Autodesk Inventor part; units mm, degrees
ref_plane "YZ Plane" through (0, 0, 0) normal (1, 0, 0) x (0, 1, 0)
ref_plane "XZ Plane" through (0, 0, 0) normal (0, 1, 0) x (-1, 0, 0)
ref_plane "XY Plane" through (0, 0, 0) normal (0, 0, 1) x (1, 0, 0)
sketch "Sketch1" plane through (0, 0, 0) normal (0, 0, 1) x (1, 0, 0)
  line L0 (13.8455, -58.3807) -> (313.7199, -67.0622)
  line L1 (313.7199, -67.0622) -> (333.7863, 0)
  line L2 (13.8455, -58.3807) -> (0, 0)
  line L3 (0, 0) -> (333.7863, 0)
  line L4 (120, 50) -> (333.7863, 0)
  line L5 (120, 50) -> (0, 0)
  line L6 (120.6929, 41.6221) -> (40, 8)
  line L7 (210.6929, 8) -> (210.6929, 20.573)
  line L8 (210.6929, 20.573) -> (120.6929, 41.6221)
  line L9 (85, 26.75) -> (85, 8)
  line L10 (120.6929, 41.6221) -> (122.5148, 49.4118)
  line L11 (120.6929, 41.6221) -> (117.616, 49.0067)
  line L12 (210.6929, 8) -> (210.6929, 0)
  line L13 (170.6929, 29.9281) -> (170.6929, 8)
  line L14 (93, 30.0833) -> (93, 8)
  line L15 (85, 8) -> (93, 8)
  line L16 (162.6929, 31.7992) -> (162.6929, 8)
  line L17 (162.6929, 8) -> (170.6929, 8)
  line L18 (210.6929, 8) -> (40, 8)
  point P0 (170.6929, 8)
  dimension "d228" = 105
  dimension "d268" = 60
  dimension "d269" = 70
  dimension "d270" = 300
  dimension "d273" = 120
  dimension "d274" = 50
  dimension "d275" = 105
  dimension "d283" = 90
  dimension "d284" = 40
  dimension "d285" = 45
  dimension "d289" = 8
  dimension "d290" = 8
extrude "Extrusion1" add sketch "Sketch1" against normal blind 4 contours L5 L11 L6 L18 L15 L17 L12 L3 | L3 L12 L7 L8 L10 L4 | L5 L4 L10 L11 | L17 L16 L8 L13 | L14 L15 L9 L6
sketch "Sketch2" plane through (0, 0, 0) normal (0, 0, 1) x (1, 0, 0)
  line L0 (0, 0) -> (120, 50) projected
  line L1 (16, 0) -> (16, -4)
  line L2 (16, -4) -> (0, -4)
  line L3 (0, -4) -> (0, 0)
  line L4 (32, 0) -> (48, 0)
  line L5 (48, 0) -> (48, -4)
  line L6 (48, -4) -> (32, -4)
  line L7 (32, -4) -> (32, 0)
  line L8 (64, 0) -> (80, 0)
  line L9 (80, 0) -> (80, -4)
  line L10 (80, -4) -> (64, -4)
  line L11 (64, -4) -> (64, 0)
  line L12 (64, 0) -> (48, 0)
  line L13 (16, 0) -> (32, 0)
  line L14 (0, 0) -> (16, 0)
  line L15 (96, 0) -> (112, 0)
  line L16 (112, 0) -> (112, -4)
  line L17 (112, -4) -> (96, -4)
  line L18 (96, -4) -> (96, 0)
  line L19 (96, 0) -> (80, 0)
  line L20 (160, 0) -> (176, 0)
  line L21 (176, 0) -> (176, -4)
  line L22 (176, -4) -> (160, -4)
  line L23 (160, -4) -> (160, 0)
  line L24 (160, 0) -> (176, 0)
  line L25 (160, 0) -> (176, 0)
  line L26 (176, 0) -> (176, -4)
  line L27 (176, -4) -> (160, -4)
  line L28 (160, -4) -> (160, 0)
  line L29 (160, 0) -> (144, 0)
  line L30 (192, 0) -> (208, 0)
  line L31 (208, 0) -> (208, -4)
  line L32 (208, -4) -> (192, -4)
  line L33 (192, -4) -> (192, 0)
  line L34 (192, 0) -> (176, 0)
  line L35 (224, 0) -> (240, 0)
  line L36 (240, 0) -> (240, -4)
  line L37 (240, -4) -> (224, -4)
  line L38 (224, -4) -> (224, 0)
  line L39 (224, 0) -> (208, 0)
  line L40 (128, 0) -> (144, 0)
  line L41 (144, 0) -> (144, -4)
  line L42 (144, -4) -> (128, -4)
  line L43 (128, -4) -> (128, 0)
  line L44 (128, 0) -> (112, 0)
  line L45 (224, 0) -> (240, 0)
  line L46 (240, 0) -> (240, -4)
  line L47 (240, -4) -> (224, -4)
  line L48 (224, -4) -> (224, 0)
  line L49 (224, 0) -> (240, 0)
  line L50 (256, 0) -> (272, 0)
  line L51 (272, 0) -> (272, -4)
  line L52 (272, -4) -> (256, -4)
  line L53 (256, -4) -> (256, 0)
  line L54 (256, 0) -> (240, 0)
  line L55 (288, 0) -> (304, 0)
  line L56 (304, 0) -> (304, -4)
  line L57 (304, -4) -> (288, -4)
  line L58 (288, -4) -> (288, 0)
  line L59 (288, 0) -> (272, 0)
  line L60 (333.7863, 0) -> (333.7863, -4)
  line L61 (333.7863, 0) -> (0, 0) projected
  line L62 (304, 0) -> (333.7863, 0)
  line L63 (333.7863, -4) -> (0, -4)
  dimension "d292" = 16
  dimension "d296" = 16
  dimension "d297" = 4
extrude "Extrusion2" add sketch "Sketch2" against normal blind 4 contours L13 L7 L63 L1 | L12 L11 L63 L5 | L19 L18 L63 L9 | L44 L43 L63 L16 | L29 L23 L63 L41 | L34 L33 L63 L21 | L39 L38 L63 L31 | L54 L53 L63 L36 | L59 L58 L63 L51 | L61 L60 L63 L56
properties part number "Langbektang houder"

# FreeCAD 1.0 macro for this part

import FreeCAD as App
import Part
import Sketcher
Q = App.Units.Quantity


def add_polygon(sketch, points):
    """Adds a closed chain of lines whose ends are joined by coincident constraints."""
    first, n = sketch.GeometryCount, len(points)
    for a, b in zip(points, points[1:] + points[:1]):
        sketch.addGeometry(Part.LineSegment(App.Vector(*a, 0), App.Vector(*b, 0)), False)
    for i in range(n):
        sketch.addConstraint(Sketcher.Constraint("Coincident", first + i, 2, first + (i + 1) % n, 1))

doc = App.newDocument("Part")
body = doc.addObject("PartDesign::Body", "Body")

# Sketch on XY plane
sketch1 = doc.addObject("Sketcher::SketchObject", "Sketch")
body.addObject(sketch1)
sketch1.AttachmentSupport = (doc.XY_Plane, [""])
sketch1.MapMode = "FlatFace"
add_polygon(sketch1, [(0, 0), (333.7863, 0), (120, 50)])  # lines 0-2
add_polygon(sketch1, [(92.999975, 30.083361), (120.6929, 41.6221), (162.6929, 31.7992), (162.6929, 8), (93, 8)])  # lines 3-7
add_polygon(sketch1, [(40, 8), (85, 26.75), (85, 8)])  # lines 8-10
add_polygon(sketch1, [(210.6929, 8), (170.6929, 8), (170.692912, 29.928153), (210.6929, 20.573)])  # lines 11-14
sketch1.addConstraint(Sketcher.Constraint("Horizontal", 0))
sketch1.addConstraint(Sketcher.Constraint("Vertical", 5))
sketch1.addConstraint(Sketcher.Constraint("Horizontal", 6))
sketch1.addConstraint(Sketcher.Constraint("Vertical", 7))
sketch1.addConstraint(Sketcher.Constraint("Vertical", 9))
sketch1.addConstraint(Sketcher.Constraint("Horizontal", 10))
sketch1.addConstraint(Sketcher.Constraint("Horizontal", 11))
sketch1.addConstraint(Sketcher.Constraint("Vertical", 12))
sketch1.addConstraint(Sketcher.Constraint("Vertical", 14))
sketch1.addConstraint(Sketcher.Constraint("Coincident", 2, 2, -1, 1))
sketch1.addConstraint(Sketcher.Constraint("DistanceX", 10, 2, 10, 1, Q("45 mm")))
sketch1.addConstraint(Sketcher.Constraint("DistanceX", 11, 2, 11, 1, Q("40 mm")))
sketch1.addConstraint(Sketcher.Constraint("DistanceX", -1, 1, 1, 2, Q("120 mm")))
sketch1.addConstraint(Sketcher.Constraint("DistanceY", -1, 1, 1, 2, Q("50 mm")))
sketch1.addConstraint(Sketcher.Constraint("DistanceY", -1, 1, 5, 2, Q("8 mm")))
sketch1.addConstraint(Sketcher.Constraint("DistanceY", -1, 1, 9, 2, Q("8 mm")))
sketch1.addConstraint(Sketcher.Constraint("DistanceX", -1, 1, 10, 2, Q("40 mm")))
sketch1.addConstraint(Sketcher.Constraint("DistanceY", -1, 1, 11, 2, Q("8 mm")))
sketch1.addConstraint(Sketcher.Constraint("DistanceX", 8, 2, 7, 2, Q("8 mm")))
sketch1.addConstraint(Sketcher.Constraint("DistanceX", 5, 2, 11, 2, Q("8 mm")))
sketch1.addConstraint(Sketcher.Constraint("DistanceX", 3, 2, 11, 2, Q("50 mm")))
sketch1.addConstraint(Sketcher.Constraint("DistanceY", 9, 2, 9, 1, Q("18.75 mm")))
sketch1.addConstraint(Sketcher.Constraint("DistanceX", 6, 2, 6, 1, Q("69.693 mm")))
sketch1.addConstraint(Sketcher.Constraint("DistanceY", 12, 1, 12, 2, Q("21.928 mm")))
sketch1.addConstraint(Sketcher.Constraint("DistanceY", 14, 2, 14, 1, Q("12.573 mm")))
sketch1.addConstraint(Sketcher.Constraint("DistanceX", 0, 1, 0, 2, Q("333.7863 mm")))
sketch1.addConstraint(Sketcher.Constraint("DistanceY", 5, 2, 5, 1, Q("23.7992 mm")))
sketch1.addConstraint(Sketcher.Constraint("DistanceY", 7, 1, 7, 2, Q("22.0833 mm")))
sketch1.addConstraint(Sketcher.Constraint("DistanceY", -1, 1, 3, 2, Q("41.622 mm")))
pad1 = doc.addObject("PartDesign::Pad", "Pad")
body.addObject(pad1)
pad1.Profile = sketch1
pad1.Length = 4
pad1.Reversed = True

# Sketch on XY plane
sketch2 = doc.addObject("Sketcher::SketchObject", "Sketch001")
body.addObject(sketch2)
sketch2.AttachmentSupport = (doc.XY_Plane, [""])
sketch2.MapMode = "FlatFace"
add_polygon(sketch2, [(32, 0), (16, 0), (16, -4), (32, -4)])  # lines 0-3
add_polygon(sketch2, [(64, 0), (48, 0), (48, -4), (64, -4)])  # lines 4-7
add_polygon(sketch2, [(96, 0), (80, 0), (80, -4), (96, -4)])  # lines 8-11
add_polygon(sketch2, [(128, 0), (112, 0), (112, -4), (128, -4)])  # lines 12-15
add_polygon(sketch2, [(160, 0), (144, 0), (144, -4), (160, -4)])  # lines 16-19
add_polygon(sketch2, [(192, 0), (176, 0), (176, -4), (192, -4)])  # lines 20-23
add_polygon(sketch2, [(224, 0), (208, 0), (208, -4), (224, -4)])  # lines 24-27
add_polygon(sketch2, [(256, 0), (240, 0), (240, -4), (256, -4)])  # lines 28-31
add_polygon(sketch2, [(288, 0), (272, 0), (272, -4), (288, -4)])  # lines 32-35
add_polygon(sketch2, [(333.7863, 0), (304, 0), (304, -4), (333.7863, -4)])  # lines 36-39
sketch2.addConstraint(Sketcher.Constraint("Horizontal", 0))
sketch2.addConstraint(Sketcher.Constraint("Vertical", 1))
sketch2.addConstraint(Sketcher.Constraint("Horizontal", 2))
sketch2.addConstraint(Sketcher.Constraint("Vertical", 3))
sketch2.addConstraint(Sketcher.Constraint("Horizontal", 4))
sketch2.addConstraint(Sketcher.Constraint("Vertical", 5))
sketch2.addConstraint(Sketcher.Constraint("Horizontal", 6))
sketch2.addConstraint(Sketcher.Constraint("Vertical", 7))
sketch2.addConstraint(Sketcher.Constraint("Horizontal", 8))
sketch2.addConstraint(Sketcher.Constraint("Vertical", 9))
sketch2.addConstraint(Sketcher.Constraint("Horizontal", 10))
sketch2.addConstraint(Sketcher.Constraint("Vertical", 11))
sketch2.addConstraint(Sketcher.Constraint("Horizontal", 12))
sketch2.addConstraint(Sketcher.Constraint("Vertical", 13))
sketch2.addConstraint(Sketcher.Constraint("Horizontal", 14))
sketch2.addConstraint(Sketcher.Constraint("Vertical", 15))
sketch2.addConstraint(Sketcher.Constraint("Horizontal", 16))
sketch2.addConstraint(Sketcher.Constraint("Vertical", 17))
sketch2.addConstraint(Sketcher.Constraint("Horizontal", 18))
sketch2.addConstraint(Sketcher.Constraint("Vertical", 19))
sketch2.addConstraint(Sketcher.Constraint("Horizontal", 20))
sketch2.addConstraint(Sketcher.Constraint("Vertical", 21))
sketch2.addConstraint(Sketcher.Constraint("Horizontal", 22))
sketch2.addConstraint(Sketcher.Constraint("Vertical", 23))
sketch2.addConstraint(Sketcher.Constraint("Horizontal", 24))
sketch2.addConstraint(Sketcher.Constraint("Vertical", 25))
sketch2.addConstraint(Sketcher.Constraint("Horizontal", 26))
sketch2.addConstraint(Sketcher.Constraint("Vertical", 27))
sketch2.addConstraint(Sketcher.Constraint("Horizontal", 28))
sketch2.addConstraint(Sketcher.Constraint("Vertical", 29))
sketch2.addConstraint(Sketcher.Constraint("Horizontal", 30))
sketch2.addConstraint(Sketcher.Constraint("Vertical", 31))
sketch2.addConstraint(Sketcher.Constraint("Horizontal", 32))
sketch2.addConstraint(Sketcher.Constraint("Vertical", 33))
sketch2.addConstraint(Sketcher.Constraint("Horizontal", 34))
sketch2.addConstraint(Sketcher.Constraint("Vertical", 35))
sketch2.addConstraint(Sketcher.Constraint("Horizontal", 36))
sketch2.addConstraint(Sketcher.Constraint("Vertical", 37))
sketch2.addConstraint(Sketcher.Constraint("Horizontal", 38))
sketch2.addConstraint(Sketcher.Constraint("Vertical", 39))
sketch2.addConstraint(Sketcher.Constraint("PointOnObject", 0, 2, -1))
sketch2.addConstraint(Sketcher.Constraint("PointOnObject", 4, 2, -1))
sketch2.addConstraint(Sketcher.Constraint("PointOnObject", 8, 2, -1))
sketch2.addConstraint(Sketcher.Constraint("PointOnObject", 12, 2, -1))
sketch2.addConstraint(Sketcher.Constraint("PointOnObject", 16, 2, -1))
sketch2.addConstraint(Sketcher.Constraint("PointOnObject", 20, 2, -1))
sketch2.addConstraint(Sketcher.Constraint("PointOnObject", 24, 2, -1))
sketch2.addConstraint(Sketcher.Constraint("PointOnObject", 28, 2, -1))
sketch2.addConstraint(Sketcher.Constraint("PointOnObject", 32, 2, -1))
sketch2.addConstraint(Sketcher.Constraint("PointOnObject", 36, 2, -1))
sketch2.addConstraint(Sketcher.Constraint("Horizontal", 2, 2, 5, 2))
sketch2.addConstraint(Sketcher.Constraint("Horizontal", 6, 2, 9, 2))
sketch2.addConstraint(Sketcher.Constraint("Horizontal", 10, 2, 13, 2))
sketch2.addConstraint(Sketcher.Constraint("Horizontal", 14, 2, 17, 2))
sketch2.addConstraint(Sketcher.Constraint("Horizontal", 18, 2, 21, 2))
sketch2.addConstraint(Sketcher.Constraint("Horizontal", 22, 2, 25, 2))
sketch2.addConstraint(Sketcher.Constraint("Horizontal", 26, 2, 29, 2))
sketch2.addConstraint(Sketcher.Constraint("Horizontal", 30, 2, 33, 2))
sketch2.addConstraint(Sketcher.Constraint("Horizontal", 34, 2, 37, 2))
sketch2.addConstraint(Sketcher.Constraint("Equal", 2, 4))
sketch2.addConstraint(Sketcher.Constraint("Equal", 6, 8))
sketch2.addConstraint(Sketcher.Constraint("Equal", 10, 12))
sketch2.addConstraint(Sketcher.Constraint("Equal", 14, 16))
sketch2.addConstraint(Sketcher.Constraint("Equal", 18, 20))
sketch2.addConstraint(Sketcher.Constraint("Equal", 22, 24))
sketch2.addConstraint(Sketcher.Constraint("Equal", 26, 28))
sketch2.addConstraint(Sketcher.Constraint("Equal", 30, 32))
sketch2.addConstraint(Sketcher.Constraint("DistanceX", 0, 2, 0, 1, Q("16 mm")))
sketch2.addConstraint(Sketcher.Constraint("DistanceY", 1, 2, 1, 1, Q("4 mm")))
sketch2.addConstraint(Sketcher.Constraint("DistanceX", -1, 1, 0, 2, Q("16 mm")))
sketch2.addConstraint(Sketcher.Constraint("DistanceX", 3, 2, 4, 2, Q("16 mm")))
sketch2.addConstraint(Sketcher.Constraint("DistanceX", 7, 2, 8, 2, Q("16 mm")))
sketch2.addConstraint(Sketcher.Constraint("DistanceX", 11, 2, 12, 2, Q("16 mm")))
sketch2.addConstraint(Sketcher.Constraint("DistanceX", 15, 2, 16, 2, Q("16 mm")))
sketch2.addConstraint(Sketcher.Constraint("DistanceX", 19, 2, 20, 2, Q("16 mm")))
sketch2.addConstraint(Sketcher.Constraint("DistanceX", 23, 2, 24, 2, Q("16 mm")))
sketch2.addConstraint(Sketcher.Constraint("DistanceX", 27, 2, 28, 2, Q("16 mm")))
sketch2.addConstraint(Sketcher.Constraint("DistanceX", 31, 2, 32, 2, Q("16 mm")))
sketch2.addConstraint(Sketcher.Constraint("DistanceX", 35, 2, 36, 2, Q("16 mm")))
sketch2.addConstraint(Sketcher.Constraint("DistanceX", 36, 2, 36, 1, Q("29.7863 mm")))
pad2 = doc.addObject("PartDesign::Pad", "Pad001")
body.addObject(pad2)
pad2.Profile = sketch2
pad2.Length = 4
pad2.Reversed = True

doc.recompute()
